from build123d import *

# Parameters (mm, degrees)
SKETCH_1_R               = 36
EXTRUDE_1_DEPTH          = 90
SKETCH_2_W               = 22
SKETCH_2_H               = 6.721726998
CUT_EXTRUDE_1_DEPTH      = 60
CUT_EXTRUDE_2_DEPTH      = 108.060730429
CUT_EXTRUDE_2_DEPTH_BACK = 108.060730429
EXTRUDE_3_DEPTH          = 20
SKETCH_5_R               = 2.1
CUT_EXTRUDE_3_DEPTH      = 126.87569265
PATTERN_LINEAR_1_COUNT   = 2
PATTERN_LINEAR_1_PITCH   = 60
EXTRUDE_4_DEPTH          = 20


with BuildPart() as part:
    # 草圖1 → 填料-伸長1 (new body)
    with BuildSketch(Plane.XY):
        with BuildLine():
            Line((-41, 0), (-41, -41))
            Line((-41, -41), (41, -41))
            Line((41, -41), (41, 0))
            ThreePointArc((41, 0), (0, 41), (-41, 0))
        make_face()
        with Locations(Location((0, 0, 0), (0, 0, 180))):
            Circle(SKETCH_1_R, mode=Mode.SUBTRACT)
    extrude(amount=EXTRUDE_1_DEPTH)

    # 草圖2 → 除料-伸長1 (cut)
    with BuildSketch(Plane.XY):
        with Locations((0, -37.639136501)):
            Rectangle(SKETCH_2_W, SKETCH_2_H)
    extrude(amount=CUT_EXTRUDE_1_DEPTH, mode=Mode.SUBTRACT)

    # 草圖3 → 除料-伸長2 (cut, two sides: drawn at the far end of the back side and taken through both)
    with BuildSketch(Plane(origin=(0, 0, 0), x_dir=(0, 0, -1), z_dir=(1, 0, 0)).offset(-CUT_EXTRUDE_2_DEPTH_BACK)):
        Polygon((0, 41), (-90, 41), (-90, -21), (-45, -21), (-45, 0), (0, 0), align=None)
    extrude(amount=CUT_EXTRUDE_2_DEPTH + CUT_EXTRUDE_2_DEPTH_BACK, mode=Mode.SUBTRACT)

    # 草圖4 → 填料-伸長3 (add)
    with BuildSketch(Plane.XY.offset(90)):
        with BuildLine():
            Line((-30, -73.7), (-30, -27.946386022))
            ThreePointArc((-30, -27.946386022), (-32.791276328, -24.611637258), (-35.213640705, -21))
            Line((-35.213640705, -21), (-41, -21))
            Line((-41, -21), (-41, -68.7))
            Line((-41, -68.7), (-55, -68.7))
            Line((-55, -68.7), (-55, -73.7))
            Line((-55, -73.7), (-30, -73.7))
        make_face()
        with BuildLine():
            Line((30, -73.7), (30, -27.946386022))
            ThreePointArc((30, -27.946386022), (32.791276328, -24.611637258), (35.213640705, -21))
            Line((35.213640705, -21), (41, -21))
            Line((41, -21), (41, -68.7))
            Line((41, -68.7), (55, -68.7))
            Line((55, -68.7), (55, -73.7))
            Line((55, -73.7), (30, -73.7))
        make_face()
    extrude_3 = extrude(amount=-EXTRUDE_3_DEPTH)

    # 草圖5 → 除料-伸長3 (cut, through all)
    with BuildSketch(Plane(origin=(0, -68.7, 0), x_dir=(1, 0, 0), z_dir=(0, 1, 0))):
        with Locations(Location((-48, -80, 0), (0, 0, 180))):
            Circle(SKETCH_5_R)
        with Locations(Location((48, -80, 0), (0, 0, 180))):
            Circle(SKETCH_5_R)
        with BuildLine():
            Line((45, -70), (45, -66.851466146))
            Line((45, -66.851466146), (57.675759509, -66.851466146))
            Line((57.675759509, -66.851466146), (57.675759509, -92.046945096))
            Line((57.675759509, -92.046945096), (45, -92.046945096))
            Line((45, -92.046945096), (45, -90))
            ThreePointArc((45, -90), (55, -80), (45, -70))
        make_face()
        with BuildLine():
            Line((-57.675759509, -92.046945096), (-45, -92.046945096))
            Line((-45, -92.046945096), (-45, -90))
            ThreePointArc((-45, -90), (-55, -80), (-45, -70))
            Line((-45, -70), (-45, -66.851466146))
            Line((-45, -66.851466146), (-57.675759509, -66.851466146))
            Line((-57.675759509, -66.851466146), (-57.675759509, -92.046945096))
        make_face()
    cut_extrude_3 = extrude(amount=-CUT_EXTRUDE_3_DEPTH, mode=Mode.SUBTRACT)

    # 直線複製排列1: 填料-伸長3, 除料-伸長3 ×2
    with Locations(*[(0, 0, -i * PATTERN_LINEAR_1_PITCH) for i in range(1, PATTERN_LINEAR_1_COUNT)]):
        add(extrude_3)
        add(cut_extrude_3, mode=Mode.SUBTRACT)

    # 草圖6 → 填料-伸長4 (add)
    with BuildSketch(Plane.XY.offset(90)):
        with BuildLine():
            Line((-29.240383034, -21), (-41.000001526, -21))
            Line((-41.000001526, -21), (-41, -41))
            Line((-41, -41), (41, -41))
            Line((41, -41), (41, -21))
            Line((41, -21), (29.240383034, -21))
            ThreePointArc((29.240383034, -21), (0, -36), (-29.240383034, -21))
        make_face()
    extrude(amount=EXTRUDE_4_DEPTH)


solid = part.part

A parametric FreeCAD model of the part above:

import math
import FreeCAD as App
import Part
import Sketcher
Q = App.Units.Quantity

doc = App.newDocument("Part")
params = doc.addObject("Spreadsheet::Sheet", "Params")
for row, (alias, value) in enumerate([
    ("sketch1_diameter", "72 mm"),
    ("sketch1_radius", "41 mm"),
    ("sketch1_height", "41 mm"),
    ("pad1_length", "90 mm"),
    ("sketch2_width", "22 mm"),
    ("pocket1_length", "60 mm"),
    ("sketch3_width", "62 mm"),
    ("sketch3_width2", "21 mm"),
    ("sketch3_height", "90 mm"),
    ("sketch4_width", "14 mm"),
    ("sketch4_width2", "25 mm"),
    ("sketch4_height", "5 mm"),
    ("sketch4_height2", "47.7 mm"),
    ("pad2_length", "20 mm"),
    ("sketch5_radius", "10 mm"),
    ("sketch5_diameter", "4.2 mm"),
    ("linearpattern_pitch", "60 mm"),
    ("sketch6_radius", "36 mm"),
    ("sketch6_width", "82 mm"),
    ("sketch6_height", "20 mm"),
    ("pad3_length", "20 mm"),
], start=1):
    params.set(f"A{row}", alias)
    params.set(f"B{row}", "=" + value)
    params.setAlias(f"B{row}", alias)

body = doc.addObject("PartDesign::Body", "Body")

# Sketch on XY plane
sketch1 = body.newObject("Sketcher::SketchObject", "Sketch")
sketch1.AttachmentSupport = (doc.getObject("XY_Plane"), [""])
sketch1.MapMode = "FlatFace"
sketch1.addGeometry(Part.LineSegment(App.Vector(-41, 0, 0), App.Vector(-41, -41, 0)), False)
sketch1.addGeometry(Part.LineSegment(App.Vector(-41, -41, 0), App.Vector(41, -41, 0)), False)
sketch1.addGeometry(Part.LineSegment(App.Vector(41, -41, 0), App.Vector(41, 0, 0)), False)
sketch1.addGeometry(Part.ArcOfCircle(Part.Circle(App.Vector(0, 0, 0), App.Vector(0, 0, 1), 41), math.radians(0), math.radians(180)), False)
sketch1.addGeometry(Part.Circle(App.Vector(0, 0, 0), App.Vector(0, 0, 1), 36), False)
sketch1.addConstraint(Sketcher.Constraint("Coincident", 0, 2, 1, 1))
sketch1.addConstraint(Sketcher.Constraint("Coincident", 1, 2, 2, 1))
sketch1.addConstraint(Sketcher.Constraint("Tangent", 2, 2, 3, 1))
sketch1.addConstraint(Sketcher.Constraint("Tangent", 3, 2, 0, 1))
sketch1.addConstraint(Sketcher.Constraint("Vertical", 0))
sketch1.addConstraint(Sketcher.Constraint("Horizontal", 1))
sketch1.addConstraint(Sketcher.Constraint("Vertical", 2))
sketch1.addConstraint(Sketcher.Constraint("Coincident", 3, 3, -1, 1))
sketch1.addConstraint(Sketcher.Constraint("Coincident", 4, 3, -1, 1))
sketch1.addConstraint(Sketcher.Constraint("Diameter", 4, Q("72 mm")))
sketch1.addConstraint(Sketcher.Constraint("Radius", 3, Q("41 mm")))
sketch1.addConstraint(Sketcher.Constraint("DistanceY", 0, 2, 0, 1, Q("41 mm")))
sketch1.setExpression("Constraints[9]", "Params.sketch1_diameter")
sketch1.setExpression("Constraints[10]", "Params.sketch1_radius")
sketch1.setExpression("Constraints[11]", "Params.sketch1_height")
pad1 = body.newObject("PartDesign::Pad", "Pad")
pad1.Profile = sketch1
pad1.setExpression("Length", "Params.pad1_length")

# Sketch on XY plane
sketch2 = body.newObject("Sketcher::SketchObject", "Sketch001")
sketch2.AttachmentSupport = (doc.getObject("XY_Plane"), [""])
sketch2.MapMode = "FlatFace"
sketch2.addGeometry(Part.LineSegment(App.Vector(-11, -34, 0), App.Vector(-11, -41, 0)), False)
sketch2.addGeometry(Part.LineSegment(App.Vector(-11, -41, 0), App.Vector(11, -41, 0)), False)
sketch2.addGeometry(Part.LineSegment(App.Vector(11, -41, 0), App.Vector(11, -34, 0)), False)
sketch2.addGeometry(Part.LineSegment(App.Vector(11, -34, 0), App.Vector(-11, -34, 0)), False)
sketch2.addConstraint(Sketcher.Constraint("Coincident", 0, 2, 1, 1))
sketch2.addConstraint(Sketcher.Constraint("Coincident", 1, 2, 2, 1))
sketch2.addConstraint(Sketcher.Constraint("Coincident", 2, 2, 3, 1))
sketch2.addConstraint(Sketcher.Constraint("Coincident", 3, 2, 0, 1))
sketch2.addConstraint(Sketcher.Constraint("Vertical", 0))
sketch2.addConstraint(Sketcher.Constraint("Horizontal", 1))
sketch2.addConstraint(Sketcher.Constraint("Vertical", 2))
sketch2.addConstraint(Sketcher.Constraint("Horizontal", 3))
sketch2.addConstraint(Sketcher.Constraint("DistanceX", 1, 1, 1, 2, Q("22 mm")))
sketch2.addConstraint(Sketcher.Constraint("DistanceX", 0, 2, -1, 1, Q("11 mm")))
sketch2.addConstraint(Sketcher.Constraint("DistanceY", 0, 2, -1, 1, Q("41 mm")))
sketch2.addConstraint(Sketcher.Constraint("DistanceY", 0, 2, 0, 1, Q("6.721727 mm")))
sketch2.setExpression("Constraints[8]", "Params.sketch2_width")
pocket1 = body.newObject("PartDesign::Pocket", "Pocket")
pocket1.Profile = sketch2
pocket1.setExpression("Length", "Params.pocket1_length")
pocket1.Reversed = True

# Sketch on YZ plane
sketch3 = body.newObject("Sketcher::SketchObject", "Sketch002")
sketch3.AttachmentSupport = (doc.getObject("YZ_Plane"), [""])
sketch3.MapMode = "FlatFace"
sketch3.addGeometry(Part.LineSegment(App.Vector(41, 0, 0), App.Vector(41, 90, 0)), False)
sketch3.addGeometry(Part.LineSegment(App.Vector(41, 90, 0), App.Vector(-21, 90, 0)), False)
sketch3.addGeometry(Part.LineSegment(App.Vector(-21, 90, 0), App.Vector(-21, 45, 0)), False)
sketch3.addGeometry(Part.LineSegment(App.Vector(-21, 45, 0), App.Vector(0, 45, 0)), False)
sketch3.addGeometry(Part.LineSegment(App.Vector(0, 45, 0), App.Vector(0, 0, 0)), False)
sketch3.addGeometry(Part.LineSegment(App.Vector(0, 0, 0), App.Vector(41, 0, 0)), False)
sketch3.addConstraint(Sketcher.Constraint("Coincident", 0, 2, 1, 1))
sketch3.addConstraint(Sketcher.Constraint("Coincident", 1, 2, 2, 1))
sketch3.addConstraint(Sketcher.Constraint("Coincident", 2, 2, 3, 1))
sketch3.addConstraint(Sketcher.Constraint("Coincident", 3, 2, 4, 1))
sketch3.addConstraint(Sketcher.Constraint("Coincident", 4, 2, 5, 1))
sketch3.addConstraint(Sketcher.Constraint("Coincident", 5, 2, 0, 1))
sketch3.addConstraint(Sketcher.Constraint("Vertical", 0))
sketch3.addConstraint(Sketcher.Constraint("Horizontal", 1))
sketch3.addConstraint(Sketcher.Constraint("Vertical", 2))
sketch3.addConstraint(Sketcher.Constraint("Horizontal", 3))
sketch3.addConstraint(Sketcher.Constraint("Vertical", 4))
sketch3.addConstraint(Sketcher.Constraint("Horizontal", 5))
sketch3.addConstraint(Sketcher.Constraint("Coincident", 4, 2, -1, 1))
sketch3.addConstraint(Sketcher.Constraint("Equal", 2, 4))
sketch3.addConstraint(Sketcher.Constraint("DistanceX", 1, 2, 1, 1, Q("62 mm")))
sketch3.addConstraint(Sketcher.Constraint("DistanceX", 3, 1, 3, 2, Q("21 mm")))
sketch3.addConstraint(Sketcher.Constraint("DistanceY", 0, 1, 0, 2, Q("90 mm")))
sketch3.setExpression("Constraints[14]", "Params.sketch3_width")
sketch3.setExpression("Constraints[15]", "Params.sketch3_width2")
sketch3.setExpression("Constraints[16]", "Params.sketch3_height")
pocket2 = body.newObject("PartDesign::Pocket", "Pocket001")
pocket2.Profile = sketch3
pocket2.Type = "ThroughAll"
pocket2.Midplane = True

# Sketch on XY plane
sketch4 = body.newObject("Sketcher::SketchObject", "Sketch003")
sketch4.AttachmentSupport = (doc.getObject("XY_Plane"), [""])
sketch4.MapMode = "FlatFace"
sketch4.AttachmentOffset = App.Placement(App.Vector(0, 0, 90), App.Rotation())
sketch4.addGeometry(Part.LineSegment(App.Vector(-30, -74, 0), App.Vector(-30, -28, 0)), False)
sketch4.addGeometry(Part.ArcOfCircle(Part.Circle(App.Vector(0, 0, 0), App.Vector(0, 0, 1), 41), math.radians(-149.19), math.radians(-137.03)), False)
sketch4.addGeometry(Part.LineSegment(App.Vector(-35, -21, 0), App.Vector(-41, -21, 0)), False)
sketch4.addGeometry(Part.LineSegment(App.Vector(-41, -21, 0), App.Vector(-41, -69, 0)), False)
sketch4.addGeometry(Part.LineSegment(App.Vector(-41, -69, 0), App.Vector(-55, -69, 0)), False)
sketch4.addGeometry(Part.LineSegment(App.Vector(-55, -69, 0), App.Vector(-55, -74, 0)), False)
sketch4.addGeometry(Part.LineSegment(App.Vector(-55, -74, 0), App.Vector(-30, -74, 0)), False)
sketch4.addGeometry(Part.LineSegment(App.Vector(30, -28, 0), App.Vector(30, -74, 0)), False)
sketch4.addGeometry(Part.LineSegment(App.Vector(30, -74, 0), App.Vector(55, -74, 0)), False)
sketch4.addGeometry(Part.LineSegment(App.Vector(55, -74, 0), App.Vector(55, -69, 0)), False)
sketch4.addGeometry(Part.LineSegment(App.Vector(55, -69, 0), App.Vector(41, -69, 0)), False)
sketch4.addGeometry(Part.LineSegment(App.Vector(41, -69, 0), App.Vector(41, -21, 0)), False)
sketch4.addGeometry(Part.LineSegment(App.Vector(41, -21, 0), App.Vector(35, -21, 0)), False)
sketch4.addGeometry(Part.ArcOfCircle(Part.Circle(App.Vector(0, 0, 0), App.Vector(0, 0, 1), 41), math.radians(-42.97), math.radians(-30.81)), False)
sketch4.addConstraint(Sketcher.Constraint("Coincident", 0, 2, 1, 2))
sketch4.addConstraint(Sketcher.Constraint("Coincident", 1, 1, 2, 1))
sketch4.addConstraint(Sketcher.Constraint("Coincident", 2, 2, 3, 1))
sketch4.addConstraint(Sketcher.Constraint("Coincident", 3, 2, 4, 1))
sketch4.addConstraint(Sketcher.Constraint("Coincident", 4, 2, 5, 1))
sketch4.addConstraint(Sketcher.Constraint("Coincident", 5, 2, 6, 1))
sketch4.addConstraint(Sketcher.Constraint("Coincident", 6, 2, 0, 1))
sketch4.addConstraint(Sketcher.Constraint("Coincident", 7, 2, 8, 1))
sketch4.addConstraint(Sketcher.Constraint("Coincident", 8, 2, 9, 1))
sketch4.addConstraint(Sketcher.Constraint("Coincident", 9, 2, 10, 1))
sketch4.addConstraint(Sketcher.Constraint("Coincident", 10, 2, 11, 1))
sketch4.addConstraint(Sketcher.Constraint("Coincident", 11, 2, 12, 1))
sketch4.addConstraint(Sketcher.Constraint("Coincident", 12, 2, 13, 2))
sketch4.addConstraint(Sketcher.Constraint("Coincident", 13, 1, 7, 1))
sketch4.addConstraint(Sketcher.Constraint("Vertical", 0))
sketch4.addConstraint(Sketcher.Constraint("Horizontal", 2))
sketch4.addConstraint(Sketcher.Constraint("Vertical", 3))
sketch4.addConstraint(Sketcher.Constraint("Horizontal", 4))
sketch4.addConstraint(Sketcher.Constraint("Vertical", 5))
sketch4.addConstraint(Sketcher.Constraint("Horizontal", 6))
sketch4.addConstraint(Sketcher.Constraint("Vertical", 7))
sketch4.addConstraint(Sketcher.Constraint("Horizontal", 8))
sketch4.addConstraint(Sketcher.Constraint("Vertical", 9))
sketch4.addConstraint(Sketcher.Constraint("Horizontal", 10))
sketch4.addConstraint(Sketcher.Constraint("Vertical", 11))
sketch4.addConstraint(Sketcher.Constraint("Horizontal", 12))
sketch4.addConstraint(Sketcher.Constraint("Coincident", 1, 3, -1, 1))
sketch4.addConstraint(Sketcher.Constraint("Coincident", 13, 3, -1, 1))
sketch4.addConstraint(Sketcher.Constraint("Equal", 1, 13))
sketch4.addConstraint(Sketcher.Constraint("Symmetric", 6, 2, 7, 2, -2))
sketch4.addConstraint(Sketcher.Constraint("Symmetric", 4, 2, 9, 2, -2))
sketch4.addConstraint(Sketcher.Constraint("Symmetric", 2, 2, 11, 2, -2))
sketch4.addConstraint(Sketcher.Constraint("DistanceX", 4, 2, 4, 1, Q("14 mm")))
sketch4.addConstraint(Sketcher.Constraint("DistanceX", 6, 1, 6, 2, Q("25 mm")))
sketch4.addConstraint(Sketcher.Constraint("DistanceY", 5, 2, 5, 1, Q("5 mm")))
sketch4.addConstraint(Sketcher.Constraint("DistanceY", 3, 2, 3, 1, Q("47.7 mm")))
sketch4.addConstraint(Sketcher.Constraint("DistanceX", 0, 2, -1, 1, Q("30 mm")))
sketch4.addConstraint(Sketcher.Constraint("DistanceY", 1, 1, -1, 1, Q("21 mm")))
sketch4.addConstraint(Sketcher.Constraint("Radius", 1, Q("41.000006 mm")))
sketch4.setExpression("Constraints[32]", "Params.sketch4_width")
sketch4.setExpression("Constraints[33]", "Params.sketch4_width2")
sketch4.setExpression("Constraints[34]", "Params.sketch4_height")
sketch4.setExpression("Constraints[35]", "Params.sketch4_height2")
pad2 = body.newObject("PartDesign::Pad", "Pad001")
pad2.Profile = sketch4
pad2.setExpression("Length", "Params.pad2_length")
pad2.Reversed = True

# Sketch on XZ plane
sketch5 = body.newObject("Sketcher::SketchObject", "Sketch004")
sketch5.AttachmentSupport = (doc.getObject("XZ_Plane"), [""])
sketch5.MapMode = "FlatFace"
sketch5.AttachmentOffset = App.Placement(App.Vector(0, 0, 68.7), App.Rotation())
sketch5.addGeometry(Part.Circle(App.Vector(-48, 80, 0), App.Vector(0, 0, 1), 2.1), False)
sketch5.addGeometry(Part.Circle(App.Vector(48, 80, 0), App.Vector(0, 0, 1), 2.1), False)
sketch5.addGeometry(Part.LineSegment(App.Vector(45, 66.9, 0), App.Vector(45, 70, 0)), False)
sketch5.addGeometry(Part.ArcOfCircle(Part.Circle(App.Vector(45, 80, 0), App.Vector(0, 0, 1), 10), math.radians(-90), math.radians(90)), False)
sketch5.addGeometry(Part.LineSegment(App.Vector(45, 90, 0), App.Vector(45, 92, 0)), False)
sketch5.addGeometry(Part.LineSegment(App.Vector(45, 92, 0), App.Vector(57.7, 92, 0)), False)
sketch5.addGeometry(Part.LineSegment(App.Vector(57.7, 92, 0), App.Vector(57.7, 66.9, 0)), False)
sketch5.addGeometry(Part.LineSegment(App.Vector(57.7, 66.9, 0), App.Vector(45, 66.9, 0)), False)
sketch5.addGeometry(Part.LineSegment(App.Vector(-57.7, 92, 0), App.Vector(-45, 92, 0)), False)
sketch5.addGeometry(Part.LineSegment(App.Vector(-45, 92, 0), App.Vector(-45, 90, 0)), False)
sketch5.addGeometry(Part.ArcOfCircle(Part.Circle(App.Vector(-45, 80, 0), App.Vector(0, 0, 1), 10), math.radians(90), math.radians(270)), False)
sketch5.addGeometry(Part.LineSegment(App.Vector(-45, 70, 0), App.Vector(-45, 66.9, 0)), False)
sketch5.addGeometry(Part.LineSegment(App.Vector(-45, 66.9, 0), App.Vector(-57.7, 66.9, 0)), False)
sketch5.addGeometry(Part.LineSegment(App.Vector(-57.7, 66.9, 0), App.Vector(-57.7, 92, 0)), False)
sketch5.addConstraint(Sketcher.Constraint("Coincident", 2, 2, 3, 1))
sketch5.addConstraint(Sketcher.Constraint("Coincident", 3, 2, 4, 1))
sketch5.addConstraint(Sketcher.Constraint("Coincident", 4, 2, 5, 1))
sketch5.addConstraint(Sketcher.Constraint("Coincident", 5, 2, 6, 1))
sketch5.addConstraint(Sketcher.Constraint("Coincident", 6, 2, 7, 1))
sketch5.addConstraint(Sketcher.Constraint("Coincident", 7, 2, 2, 1))
sketch5.addConstraint(Sketcher.Constraint("Coincident", 8, 2, 9, 1))
sketch5.addConstraint(Sketcher.Constraint("Coincident", 9, 2, 10, 1))
sketch5.addConstraint(Sketcher.Constraint("Coincident", 10, 2, 11, 1))
sketch5.addConstraint(Sketcher.Constraint("Coincident", 11, 2, 12, 1))
sketch5.addConstraint(Sketcher.Constraint("Coincident", 12, 2, 13, 1))
sketch5.addConstraint(Sketcher.Constraint("Coincident", 13, 2, 8, 1))
sketch5.addConstraint(Sketcher.Constraint("Vertical", 2))
sketch5.addConstraint(Sketcher.Constraint("Vertical", 4))
sketch5.addConstraint(Sketcher.Constraint("Horizontal", 5))
sketch5.addConstraint(Sketcher.Constraint("Vertical", 6))
sketch5.addConstraint(Sketcher.Constraint("Horizontal", 7))
sketch5.addConstraint(Sketcher.Constraint("Horizontal", 8))
sketch5.addConstraint(Sketcher.Constraint("Vertical", 9))
sketch5.addConstraint(Sketcher.Constraint("Vertical", 11))
sketch5.addConstraint(Sketcher.Constraint("Horizontal", 12))
sketch5.addConstraint(Sketcher.Constraint("Vertical", 13))
sketch5.addConstraint(Sketcher.Constraint("Equal", 0, 1))
sketch5.addConstraint(Sketcher.Constraint("Equal", 3, 10))
sketch5.addConstraint(Sketcher.Constraint("Symmetric", 0, 3, 1, 3, -2))
sketch5.addConstraint(Sketcher.Constraint("Symmetric", 3, 3, 10, 3, -2))
sketch5.addConstraint(Sketcher.Constraint("Symmetric", 4, 2, 8, 2, -2))
sketch5.addConstraint(Sketcher.Constraint("Symmetric", 7, 2, 11, 2, -2))
sketch5.addConstraint(Sketcher.Constraint("Horizontal", 1, 3, 3, 3))
sketch5.addConstraint(Sketcher.Constraint("Vertical", 3, 3, 2, 2))
sketch5.addConstraint(Sketcher.Constraint("Vertical", 2, 2, 3, 2))
sketch5.addConstraint(Sketcher.Constraint("Equal", 7, 8))
sketch5.addConstraint(Sketcher.Constraint("Radius", 3, Q("10 mm")))
sketch5.addConstraint(Sketcher.Constraint("Diameter", 0, Q("4.2 mm")))
sketch5.addConstraint(Sketcher.Constraint("DistanceX", 0, 3, -1, 1, Q("48 mm")))
sketch5.addConstraint(Sketcher.Constraint("DistanceY", -1, 1, 0, 3, Q("80 mm")))
sketch5.addConstraint(Sketcher.Constraint("DistanceX", -1, 1, 3, 3, Q("45 mm")))
sketch5.addConstraint(Sketcher.Constraint("DistanceX", 5, 1, 5, 2, Q("12.67576 mm")))
sketch5.addConstraint(Sketcher.Constraint("DistanceY", 6, 2, 6, 1, Q("25.195479 mm")))
sketch5.addConstraint(Sketcher.Constraint("DistanceY", 2, 1, 2, 2, Q("3.148534 mm")))
sketch5.setExpression("Constraints[32]", "Params.sketch5_radius")
sketch5.setExpression("Constraints[33]", "Params.sketch5_diameter")
pocket3 = body.newObject("PartDesign::Pocket", "Pocket002")
pocket3.Profile = sketch5
pocket3.Type = "ThroughAll"
pocket3.Reversed = True
doc.recompute()

linearpattern = body.newObject("PartDesign::LinearPattern", "LinearPattern")
linearpattern.Originals = [pad2, pocket3]
linearpattern.Direction = (doc.getObject("Z_Axis"), [""])
linearpattern.Mode = "offset"
linearpattern.setExpression("Offset", "Params.linearpattern_pitch")
linearpattern.Occurrences = 2
linearpattern.Reversed = True
body.Tip = linearpattern

# Sketch on XY plane
sketch6 = body.newObject("Sketcher::SketchObject", "Sketch005")
sketch6.AttachmentSupport = (doc.getObject("XY_Plane"), [""])
sketch6.MapMode = "FlatFace"
sketch6.AttachmentOffset = App.Placement(App.Vector(0, 0, 90), App.Rotation())
sketch6.addGeometry(Part.LineSegment(App.Vector(-29, -21, 0), App.Vector(-41, -21, 0)), False)
sketch6.addGeometry(Part.LineSegment(App.Vector(-41, -21, 0), App.Vector(-41, -41, 0)), False)
sketch6.addGeometry(Part.LineSegment(App.Vector(-41, -41, 0), App.Vector(41, -41, 0)), False)
sketch6.addGeometry(Part.LineSegment(App.Vector(41, -41, 0), App.Vector(41, -21, 0)), False)
sketch6.addGeometry(Part.LineSegment(App.Vector(41, -21, 0), App.Vector(29, -21, 0)), False)
sketch6.addGeometry(Part.ArcOfCircle(Part.Circle(App.Vector(0, 0, 0), App.Vector(0, 0, 1), 36), math.radians(-144), math.radians(-36)), False)
sketch6.addConstraint(Sketcher.Constraint("Coincident", 0, 2, 1, 1))
sketch6.addConstraint(Sketcher.Constraint("Coincident", 1, 2, 2, 1))
sketch6.addConstraint(Sketcher.Constraint("Coincident", 2, 2, 3, 1))
sketch6.addConstraint(Sketcher.Constraint("Coincident", 3, 2, 4, 1))
sketch6.addConstraint(Sketcher.Constraint("Coincident", 4, 2, 5, 2))
sketch6.addConstraint(Sketcher.Constraint("Coincident", 5, 1, 0, 1))
sketch6.addConstraint(Sketcher.Constraint("Horizontal", 0))
sketch6.addConstraint(Sketcher.Constraint("Vertical", 1))
sketch6.addConstraint(Sketcher.Constraint("Horizontal", 2))
sketch6.addConstraint(Sketcher.Constraint("Vertical", 3))
sketch6.addConstraint(Sketcher.Constraint("Horizontal", 4))
sketch6.addConstraint(Sketcher.Constraint("Coincident", 5, 3, -1, 1))
sketch6.addConstraint(Sketcher.Constraint("Symmetric", 0, 2, 3, 2, -2))
sketch6.addConstraint(Sketcher.Constraint("Radius", 5, Q("36 mm")))
sketch6.addConstraint(Sketcher.Constraint("DistanceX", 2, 1, 2, 2, Q("82 mm")))
sketch6.addConstraint(Sketcher.Constraint("DistanceY", 1, 2, 1, 1, Q("20 mm")))
sketch6.addConstraint(Sketcher.Constraint("DistanceY", 0, 2, -1, 1, Q("21 mm")))
sketch6.setExpression("Constraints[13]", "Params.sketch6_radius")
sketch6.setExpression("Constraints[14]", "Params.sketch6_width")
sketch6.setExpression("Constraints[15]", "Params.sketch6_height")
pad3 = body.newObject("PartDesign::Pad", "Pad002")
pad3.Profile = sketch6
pad3.setExpression("Length", "Params.pad3_length")

doc.recompute()
